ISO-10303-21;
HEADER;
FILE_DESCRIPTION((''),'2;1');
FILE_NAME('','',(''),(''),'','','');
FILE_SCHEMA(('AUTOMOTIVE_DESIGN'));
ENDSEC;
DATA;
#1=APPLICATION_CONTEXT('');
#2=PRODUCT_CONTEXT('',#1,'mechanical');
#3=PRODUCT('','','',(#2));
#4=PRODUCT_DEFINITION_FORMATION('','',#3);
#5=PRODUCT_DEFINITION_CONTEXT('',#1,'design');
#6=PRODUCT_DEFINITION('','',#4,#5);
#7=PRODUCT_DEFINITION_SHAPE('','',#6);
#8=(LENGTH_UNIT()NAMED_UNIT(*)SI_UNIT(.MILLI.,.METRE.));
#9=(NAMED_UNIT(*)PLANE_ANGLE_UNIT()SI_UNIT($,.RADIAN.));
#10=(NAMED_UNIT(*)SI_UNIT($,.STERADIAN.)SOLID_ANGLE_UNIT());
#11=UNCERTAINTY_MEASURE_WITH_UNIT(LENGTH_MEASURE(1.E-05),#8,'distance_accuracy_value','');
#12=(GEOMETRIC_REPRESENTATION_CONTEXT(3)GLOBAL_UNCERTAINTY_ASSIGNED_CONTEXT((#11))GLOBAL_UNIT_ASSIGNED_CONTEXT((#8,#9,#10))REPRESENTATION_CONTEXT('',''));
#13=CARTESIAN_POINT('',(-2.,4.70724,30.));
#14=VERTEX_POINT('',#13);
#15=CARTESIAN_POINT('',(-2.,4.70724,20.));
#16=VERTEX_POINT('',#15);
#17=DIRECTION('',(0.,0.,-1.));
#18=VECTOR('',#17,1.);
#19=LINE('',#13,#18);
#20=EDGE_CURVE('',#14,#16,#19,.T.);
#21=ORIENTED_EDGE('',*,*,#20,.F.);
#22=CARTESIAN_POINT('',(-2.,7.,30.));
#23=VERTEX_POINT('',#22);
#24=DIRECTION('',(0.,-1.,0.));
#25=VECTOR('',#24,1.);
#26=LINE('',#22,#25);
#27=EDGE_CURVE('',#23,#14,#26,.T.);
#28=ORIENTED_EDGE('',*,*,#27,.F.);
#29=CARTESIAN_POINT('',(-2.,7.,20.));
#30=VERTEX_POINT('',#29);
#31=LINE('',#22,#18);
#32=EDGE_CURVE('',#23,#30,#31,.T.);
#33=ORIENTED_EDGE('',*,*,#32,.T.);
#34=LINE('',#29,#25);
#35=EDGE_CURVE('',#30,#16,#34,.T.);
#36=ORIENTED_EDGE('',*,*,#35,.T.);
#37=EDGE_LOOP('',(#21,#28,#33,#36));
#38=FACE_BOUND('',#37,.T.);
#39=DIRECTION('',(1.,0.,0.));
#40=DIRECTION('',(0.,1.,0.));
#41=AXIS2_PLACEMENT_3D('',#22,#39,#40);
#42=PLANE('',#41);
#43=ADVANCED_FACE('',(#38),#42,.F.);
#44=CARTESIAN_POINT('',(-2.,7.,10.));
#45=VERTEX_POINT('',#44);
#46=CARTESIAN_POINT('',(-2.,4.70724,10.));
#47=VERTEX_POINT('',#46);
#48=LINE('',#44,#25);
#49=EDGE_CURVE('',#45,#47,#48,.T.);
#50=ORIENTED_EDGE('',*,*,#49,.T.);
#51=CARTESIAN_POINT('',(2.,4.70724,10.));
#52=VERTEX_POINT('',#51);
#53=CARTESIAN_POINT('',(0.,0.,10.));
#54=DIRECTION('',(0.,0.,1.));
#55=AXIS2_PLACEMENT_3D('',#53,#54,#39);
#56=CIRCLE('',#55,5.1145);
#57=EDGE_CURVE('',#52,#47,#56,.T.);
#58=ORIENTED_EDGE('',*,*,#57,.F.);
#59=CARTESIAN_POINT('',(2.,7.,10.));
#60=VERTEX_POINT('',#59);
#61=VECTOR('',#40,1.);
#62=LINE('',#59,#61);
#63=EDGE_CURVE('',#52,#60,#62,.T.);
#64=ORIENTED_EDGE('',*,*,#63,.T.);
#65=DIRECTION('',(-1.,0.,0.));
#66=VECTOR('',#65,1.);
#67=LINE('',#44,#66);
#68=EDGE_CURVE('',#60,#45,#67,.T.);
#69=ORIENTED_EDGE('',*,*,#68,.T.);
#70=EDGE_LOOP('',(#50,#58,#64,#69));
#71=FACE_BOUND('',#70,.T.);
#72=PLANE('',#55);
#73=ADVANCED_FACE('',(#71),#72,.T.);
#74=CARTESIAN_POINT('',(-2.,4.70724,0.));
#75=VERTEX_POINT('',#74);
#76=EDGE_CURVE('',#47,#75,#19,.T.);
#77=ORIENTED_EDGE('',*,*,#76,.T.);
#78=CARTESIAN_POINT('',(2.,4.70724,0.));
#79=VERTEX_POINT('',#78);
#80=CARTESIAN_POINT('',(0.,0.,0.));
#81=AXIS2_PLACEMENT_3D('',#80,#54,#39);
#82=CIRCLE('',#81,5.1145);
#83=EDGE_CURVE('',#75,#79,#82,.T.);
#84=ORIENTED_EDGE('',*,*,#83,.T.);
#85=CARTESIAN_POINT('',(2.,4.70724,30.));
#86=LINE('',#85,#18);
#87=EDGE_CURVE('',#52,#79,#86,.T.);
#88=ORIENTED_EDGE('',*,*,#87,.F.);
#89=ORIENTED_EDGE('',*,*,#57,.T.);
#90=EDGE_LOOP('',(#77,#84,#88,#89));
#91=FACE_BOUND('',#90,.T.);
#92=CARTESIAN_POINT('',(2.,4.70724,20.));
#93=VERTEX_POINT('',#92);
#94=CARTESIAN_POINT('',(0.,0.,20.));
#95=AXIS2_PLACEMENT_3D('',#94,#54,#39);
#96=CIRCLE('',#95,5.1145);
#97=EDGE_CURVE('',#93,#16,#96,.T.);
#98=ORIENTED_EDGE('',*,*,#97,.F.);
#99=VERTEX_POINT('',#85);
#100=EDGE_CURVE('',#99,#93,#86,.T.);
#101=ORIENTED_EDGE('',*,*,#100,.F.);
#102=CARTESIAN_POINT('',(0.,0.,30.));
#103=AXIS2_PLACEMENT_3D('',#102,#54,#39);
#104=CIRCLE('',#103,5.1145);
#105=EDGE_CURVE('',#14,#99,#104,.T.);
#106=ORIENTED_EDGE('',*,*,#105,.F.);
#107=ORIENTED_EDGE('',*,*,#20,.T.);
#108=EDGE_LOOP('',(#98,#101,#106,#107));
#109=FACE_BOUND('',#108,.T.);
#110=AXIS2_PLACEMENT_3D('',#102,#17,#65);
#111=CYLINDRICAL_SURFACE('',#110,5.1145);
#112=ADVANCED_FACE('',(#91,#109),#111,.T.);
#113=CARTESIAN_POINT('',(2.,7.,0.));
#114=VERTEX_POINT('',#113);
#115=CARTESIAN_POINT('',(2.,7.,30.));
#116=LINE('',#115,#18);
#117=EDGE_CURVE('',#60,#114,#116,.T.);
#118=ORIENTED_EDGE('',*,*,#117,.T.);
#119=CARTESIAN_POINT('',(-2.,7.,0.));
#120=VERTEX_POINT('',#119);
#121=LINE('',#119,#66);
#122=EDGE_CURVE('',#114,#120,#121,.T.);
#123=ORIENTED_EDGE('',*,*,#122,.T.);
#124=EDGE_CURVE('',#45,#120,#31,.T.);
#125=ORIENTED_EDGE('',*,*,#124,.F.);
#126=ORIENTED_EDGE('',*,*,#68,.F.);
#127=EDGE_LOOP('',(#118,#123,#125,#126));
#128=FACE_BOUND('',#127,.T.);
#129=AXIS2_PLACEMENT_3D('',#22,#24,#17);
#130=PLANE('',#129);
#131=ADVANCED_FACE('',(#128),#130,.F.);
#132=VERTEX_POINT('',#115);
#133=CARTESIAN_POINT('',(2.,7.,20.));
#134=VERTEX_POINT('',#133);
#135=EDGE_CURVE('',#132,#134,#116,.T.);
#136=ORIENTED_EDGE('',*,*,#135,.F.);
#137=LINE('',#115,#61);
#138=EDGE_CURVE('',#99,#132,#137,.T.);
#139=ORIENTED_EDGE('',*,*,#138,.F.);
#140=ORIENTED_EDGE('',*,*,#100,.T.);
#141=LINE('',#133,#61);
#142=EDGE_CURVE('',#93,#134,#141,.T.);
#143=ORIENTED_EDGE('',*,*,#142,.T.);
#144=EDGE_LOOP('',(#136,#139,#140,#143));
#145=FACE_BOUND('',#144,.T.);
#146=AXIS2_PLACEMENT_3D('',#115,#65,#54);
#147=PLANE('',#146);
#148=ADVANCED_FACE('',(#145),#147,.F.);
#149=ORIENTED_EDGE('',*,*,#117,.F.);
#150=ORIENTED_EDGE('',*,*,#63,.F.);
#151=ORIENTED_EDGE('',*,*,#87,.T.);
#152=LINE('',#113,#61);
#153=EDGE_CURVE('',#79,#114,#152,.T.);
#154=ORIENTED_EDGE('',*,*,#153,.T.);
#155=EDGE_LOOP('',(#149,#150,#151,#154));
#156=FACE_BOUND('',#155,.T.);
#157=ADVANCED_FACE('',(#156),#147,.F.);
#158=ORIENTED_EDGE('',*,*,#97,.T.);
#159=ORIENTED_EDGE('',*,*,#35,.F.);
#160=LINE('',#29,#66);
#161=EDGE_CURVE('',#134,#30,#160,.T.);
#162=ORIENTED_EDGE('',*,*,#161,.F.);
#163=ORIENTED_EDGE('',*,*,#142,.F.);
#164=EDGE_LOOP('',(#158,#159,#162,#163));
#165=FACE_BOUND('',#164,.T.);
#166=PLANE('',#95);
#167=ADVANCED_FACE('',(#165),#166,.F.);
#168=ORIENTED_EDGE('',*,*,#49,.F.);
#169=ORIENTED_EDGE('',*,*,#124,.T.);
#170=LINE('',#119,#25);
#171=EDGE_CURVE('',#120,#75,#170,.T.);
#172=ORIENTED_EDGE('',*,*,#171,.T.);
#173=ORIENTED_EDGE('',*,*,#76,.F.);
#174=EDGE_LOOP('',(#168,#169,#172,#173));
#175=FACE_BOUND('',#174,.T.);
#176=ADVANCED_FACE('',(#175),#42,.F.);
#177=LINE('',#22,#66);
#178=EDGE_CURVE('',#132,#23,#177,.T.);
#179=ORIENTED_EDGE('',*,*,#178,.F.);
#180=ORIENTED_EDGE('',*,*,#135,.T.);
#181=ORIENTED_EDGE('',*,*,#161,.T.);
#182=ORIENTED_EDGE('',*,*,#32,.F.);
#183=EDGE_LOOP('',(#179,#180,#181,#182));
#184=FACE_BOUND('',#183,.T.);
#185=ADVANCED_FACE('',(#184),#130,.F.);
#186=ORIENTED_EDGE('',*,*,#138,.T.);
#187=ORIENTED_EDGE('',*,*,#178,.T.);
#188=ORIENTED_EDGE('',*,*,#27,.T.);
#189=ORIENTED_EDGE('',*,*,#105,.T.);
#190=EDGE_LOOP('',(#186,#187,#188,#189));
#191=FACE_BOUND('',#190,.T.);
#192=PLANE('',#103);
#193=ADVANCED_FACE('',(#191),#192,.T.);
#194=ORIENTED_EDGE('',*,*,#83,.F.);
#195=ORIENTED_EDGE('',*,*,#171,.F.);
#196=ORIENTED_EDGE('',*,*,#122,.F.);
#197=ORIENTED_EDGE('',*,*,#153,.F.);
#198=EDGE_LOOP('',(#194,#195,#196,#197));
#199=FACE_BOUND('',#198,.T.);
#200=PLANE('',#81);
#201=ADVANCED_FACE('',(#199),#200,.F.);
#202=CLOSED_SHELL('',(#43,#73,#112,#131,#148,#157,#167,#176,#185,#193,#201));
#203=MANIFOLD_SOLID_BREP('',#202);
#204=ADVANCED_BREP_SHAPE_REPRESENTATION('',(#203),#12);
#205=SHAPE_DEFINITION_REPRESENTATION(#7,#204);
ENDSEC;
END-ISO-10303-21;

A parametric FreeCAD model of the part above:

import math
import FreeCAD as App
import Part
import Sketcher
from FreeCAD import Vector
Q = App.Units.Quantity

doc = App.newDocument("Part")
body = doc.addObject("PartDesign::Body", "Body")

# Sketch on XY plane
sketch1 = doc.addObject("Sketcher::SketchObject", "Sketch")
body.addObject(sketch1)
sketch1.AttachmentSupport = (doc.XY_Plane, [""])
sketch1.MapMode = "FlatFace"
sketch1.addGeometry([
    Part.LineSegment(Vector(2, 7, 0), Vector(-2, 7, 0)),
    Part.LineSegment(Vector(-2, 7, 0), Vector(-2, 4.7, 0)),
    Part.ArcOfCircle(Part.Circle(Vector(0, 0, 0), Vector(0, 0, 1), 5.1), math.radians(113), math.radians(427)),
    Part.LineSegment(Vector(2, 4.7, 0), Vector(2, 7, 0)),
], False)
sketch1.addConstraint([
    Sketcher.Constraint("Coincident", 0, 2, 1, 1),
    Sketcher.Constraint("Coincident", 1, 2, 2, 1),
    Sketcher.Constraint("Coincident", 2, 2, 3, 1),
    Sketcher.Constraint("Coincident", 3, 2, 0, 1),
    Sketcher.Constraint("Horizontal", 0),
    Sketcher.Constraint("Vertical", 1),
    Sketcher.Constraint("Vertical", 3),
    Sketcher.Constraint("Coincident", 2, 3, -1, 1),
    Sketcher.Constraint("Horizontal", 1, 2, 2, 2),
    Sketcher.Constraint("DistanceX", 0, 2, 0, 1, Q("4 mm")),
    Sketcher.Constraint("DistanceY", -1, 1, 0, 2, Q("7 mm")),
    Sketcher.Constraint("Radius", 2, Q("5.1145 mm")),
])
pad1 = doc.addObject("PartDesign::Pad", "Pad")
body.addObject(pad1)
pad1.Profile = sketch1
pad1.Length = 30

# Sketch on XY plane
sketch2 = doc.addObject("Sketcher::SketchObject", "Sketch001")
body.addObject(sketch2)
sketch2.AttachmentSupport = (doc.XY_Plane, [""])
sketch2.MapMode = "FlatFace"
sketch2.AttachmentOffset = App.Placement(Vector(0, 0, 20), App.Rotation())
sketch2.addGeometry([
    Part.Circle(Vector(0, 0, 0), Vector(0, 0, 1), 9),
    Part.Circle(Vector(0, 0, 0), Vector(0, 0, 1), 5),
], False)
sketch2.addConstraint([
    Sketcher.Constraint("Coincident", 0, 3, -1, 1),
    Sketcher.Constraint("Coincident", 1, 3, -1, 1),
    Sketcher.Constraint("Diameter", 1, Q("10.229 mm")),
    Sketcher.Constraint("Diameter", 0, Q("18.136275 mm")),
])
pocket1 = doc.addObject("PartDesign::Pocket", "Pocket")
body.addObject(pocket1)
pocket1.Profile = sketch2
pocket1.Length = 10

doc.recompute()
